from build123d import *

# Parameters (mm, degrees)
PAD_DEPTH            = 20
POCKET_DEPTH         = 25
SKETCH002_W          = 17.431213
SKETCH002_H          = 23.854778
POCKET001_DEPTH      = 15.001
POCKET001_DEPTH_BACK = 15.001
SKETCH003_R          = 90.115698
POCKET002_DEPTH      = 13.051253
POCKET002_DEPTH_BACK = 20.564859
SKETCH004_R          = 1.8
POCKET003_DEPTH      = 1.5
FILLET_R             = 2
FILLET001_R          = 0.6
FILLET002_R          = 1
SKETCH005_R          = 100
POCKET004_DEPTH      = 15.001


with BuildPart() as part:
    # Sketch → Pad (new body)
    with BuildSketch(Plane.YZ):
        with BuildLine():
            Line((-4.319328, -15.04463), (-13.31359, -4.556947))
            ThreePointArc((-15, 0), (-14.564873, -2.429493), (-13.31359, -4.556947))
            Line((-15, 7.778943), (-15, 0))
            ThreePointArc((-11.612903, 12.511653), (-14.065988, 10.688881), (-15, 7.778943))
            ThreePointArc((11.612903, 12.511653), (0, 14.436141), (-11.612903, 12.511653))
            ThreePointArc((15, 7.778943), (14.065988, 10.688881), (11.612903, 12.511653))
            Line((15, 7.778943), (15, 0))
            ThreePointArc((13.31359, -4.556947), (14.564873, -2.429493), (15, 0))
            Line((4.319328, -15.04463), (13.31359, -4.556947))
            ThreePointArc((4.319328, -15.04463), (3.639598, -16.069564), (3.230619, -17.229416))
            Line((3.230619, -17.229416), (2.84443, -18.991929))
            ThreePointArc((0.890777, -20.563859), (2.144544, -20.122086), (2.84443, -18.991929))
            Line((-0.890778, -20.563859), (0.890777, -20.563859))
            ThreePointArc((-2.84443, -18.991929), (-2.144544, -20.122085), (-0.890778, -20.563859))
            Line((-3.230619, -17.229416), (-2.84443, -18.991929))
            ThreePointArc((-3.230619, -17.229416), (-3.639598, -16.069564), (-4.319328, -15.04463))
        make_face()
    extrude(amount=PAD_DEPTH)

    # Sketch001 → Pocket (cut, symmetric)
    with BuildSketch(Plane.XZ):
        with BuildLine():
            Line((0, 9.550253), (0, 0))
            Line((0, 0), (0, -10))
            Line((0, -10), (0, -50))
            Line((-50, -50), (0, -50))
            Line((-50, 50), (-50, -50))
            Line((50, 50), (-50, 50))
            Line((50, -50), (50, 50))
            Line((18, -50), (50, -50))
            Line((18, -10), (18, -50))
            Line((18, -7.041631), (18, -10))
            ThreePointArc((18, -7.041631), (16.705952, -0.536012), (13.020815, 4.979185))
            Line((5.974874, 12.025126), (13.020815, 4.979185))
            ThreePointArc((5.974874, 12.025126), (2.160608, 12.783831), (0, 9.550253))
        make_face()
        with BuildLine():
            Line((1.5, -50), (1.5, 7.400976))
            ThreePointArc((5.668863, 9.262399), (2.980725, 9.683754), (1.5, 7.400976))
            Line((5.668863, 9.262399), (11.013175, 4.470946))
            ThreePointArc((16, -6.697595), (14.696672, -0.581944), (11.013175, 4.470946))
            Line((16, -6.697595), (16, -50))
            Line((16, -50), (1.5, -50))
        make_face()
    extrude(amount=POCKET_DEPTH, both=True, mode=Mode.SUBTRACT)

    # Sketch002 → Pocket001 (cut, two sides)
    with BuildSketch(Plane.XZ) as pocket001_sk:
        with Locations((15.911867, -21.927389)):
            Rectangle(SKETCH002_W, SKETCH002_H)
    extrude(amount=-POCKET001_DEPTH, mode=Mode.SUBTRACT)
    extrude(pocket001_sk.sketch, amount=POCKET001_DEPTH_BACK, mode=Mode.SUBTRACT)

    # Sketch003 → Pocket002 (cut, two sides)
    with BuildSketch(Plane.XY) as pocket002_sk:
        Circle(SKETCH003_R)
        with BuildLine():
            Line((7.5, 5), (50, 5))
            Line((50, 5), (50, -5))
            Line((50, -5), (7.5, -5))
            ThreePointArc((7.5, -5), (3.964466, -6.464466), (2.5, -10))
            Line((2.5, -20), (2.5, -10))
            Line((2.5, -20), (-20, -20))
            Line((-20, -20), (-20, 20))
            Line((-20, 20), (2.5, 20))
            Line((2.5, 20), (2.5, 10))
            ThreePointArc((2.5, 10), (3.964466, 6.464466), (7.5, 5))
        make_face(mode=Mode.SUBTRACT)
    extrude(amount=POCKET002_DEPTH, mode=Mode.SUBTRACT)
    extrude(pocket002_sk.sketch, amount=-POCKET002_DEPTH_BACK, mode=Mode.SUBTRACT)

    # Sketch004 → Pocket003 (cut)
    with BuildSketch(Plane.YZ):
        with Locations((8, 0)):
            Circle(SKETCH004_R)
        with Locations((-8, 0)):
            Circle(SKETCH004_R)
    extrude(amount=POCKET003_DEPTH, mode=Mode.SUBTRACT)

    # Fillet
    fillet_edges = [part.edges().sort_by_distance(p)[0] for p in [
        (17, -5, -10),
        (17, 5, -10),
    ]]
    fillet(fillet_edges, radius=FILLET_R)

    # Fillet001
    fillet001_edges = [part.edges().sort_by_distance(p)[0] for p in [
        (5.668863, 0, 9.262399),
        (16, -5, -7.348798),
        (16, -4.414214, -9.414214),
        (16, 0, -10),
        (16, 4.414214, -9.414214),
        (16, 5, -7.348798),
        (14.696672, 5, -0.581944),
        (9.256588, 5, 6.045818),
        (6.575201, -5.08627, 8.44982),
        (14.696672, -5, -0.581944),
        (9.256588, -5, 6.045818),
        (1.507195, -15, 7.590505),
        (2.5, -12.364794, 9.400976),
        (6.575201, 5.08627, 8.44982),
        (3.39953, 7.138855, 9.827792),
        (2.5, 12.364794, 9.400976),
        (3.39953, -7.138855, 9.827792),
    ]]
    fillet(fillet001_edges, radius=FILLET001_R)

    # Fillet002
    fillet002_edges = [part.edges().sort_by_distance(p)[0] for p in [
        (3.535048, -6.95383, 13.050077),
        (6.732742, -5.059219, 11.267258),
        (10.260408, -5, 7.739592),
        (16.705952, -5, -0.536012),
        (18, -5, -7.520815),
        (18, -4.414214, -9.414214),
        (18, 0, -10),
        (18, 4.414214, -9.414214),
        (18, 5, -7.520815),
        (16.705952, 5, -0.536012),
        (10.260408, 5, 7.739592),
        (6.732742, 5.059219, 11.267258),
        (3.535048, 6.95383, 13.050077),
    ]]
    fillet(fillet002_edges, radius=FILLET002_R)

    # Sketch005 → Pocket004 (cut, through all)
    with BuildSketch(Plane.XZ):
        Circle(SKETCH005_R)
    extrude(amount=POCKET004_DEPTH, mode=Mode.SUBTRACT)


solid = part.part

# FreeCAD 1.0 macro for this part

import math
import FreeCAD as App
import Part
import Sketcher
from FreeCAD import Vector
Q = App.Units.Quantity


def edges_at(feature, points):
    """Names of the edges that pass closest to the given points."""
    edges = feature.Shape.Edges
    near = lambda p: min(range(len(edges)), key=lambda i: edges[i].distToShape(Part.Vertex(*p))[0])
    return sorted({f"Edge{near(p) + 1}" for p in points})

doc = App.newDocument("Part")
params = doc.addObject("Spreadsheet::Sheet", "Params")
for row, (alias, value) in enumerate([
    ("sketch1_radius", "2 mm"),
    ("sketch1_radius2", "5.000001 mm"),
    ("pad1_length", "20 mm"),
    ("sketch2_radius", "17 mm"),
    ("sketch2_radius2", "3.5 mm"),
    ("sketch2_radius3", "2.5 mm"),
    ("sketch2_width", "32 mm"),
    ("sketch2_width2", "100 mm"),
    ("pocket1_length", "50 mm"),
    ("sketch4_radius", "5 mm"),
    ("sketch4_height", "10 mm"),
    ("sketch4_width", "42.5 mm"),
    ("sketch4_width2", "22.5 mm"),
    ("sketch5_diameter", "3.6 mm"),
    ("pocket4_length", "1.5 mm"),
    ("fillet_radius", "2 mm"),
    ("fillet2_radius", "0.6 mm"),
    ("fillet3_radius", "1 mm"),
    ("sketch6_diameter", "200 mm"),
], start=1):
    params.set(f"A{row}", alias)
    params.set(f"B{row}", "=" + value)
    params.setAlias(f"B{row}", alias)

body = doc.addObject("PartDesign::Body", "Body")

# Sketch on YZ plane
sketch1 = doc.addObject("Sketcher::SketchObject", "Sketch")
body.addObject(sketch1)
sketch1.AttachmentSupport = (doc.YZ_Plane, [""])
sketch1.MapMode = "FlatFace"
sketch1.addGeometry([
    Part.LineSegment(Vector(-13.3, -4.6, 0), Vector(-4.3, -15, 0)),  # 0
    Part.ArcOfCircle(Part.Circle(Vector(-8.1, -18.3, 0), Vector(0, 0, 1), 5), math.radians(12), math.radians(41)),  # 1
    Part.LineSegment(Vector(-3.2, -17.2, 0), Vector(-2.8, -19, 0)),  # 2
    Part.ArcOfCircle(Part.Circle(Vector(-0.9, -18.6, 0), Vector(0, 0, 1), 2), math.radians(-168), math.radians(-90)),  # 3
    Part.LineSegment(Vector(-0.9, -20.6, 0), Vector(0.9, -20.6, 0)),  # 4
    Part.ArcOfCircle(Part.Circle(Vector(0.9, -18.6, 0), Vector(0, 0, 1), 2), math.radians(-90), math.radians(-12)),  # 5
    Part.LineSegment(Vector(2.8, -19, 0), Vector(3.2, -17.2, 0)),  # 6
    Part.ArcOfCircle(Part.Circle(Vector(8.1, -18.3, 0), Vector(0, 0, 1), 5), math.radians(139), math.radians(168)),  # 7
    Part.LineSegment(Vector(4.3, -15, 0), Vector(13.3, -4.6, 0)),  # 8
    Part.ArcOfCircle(Part.Circle(Vector(8, 0, 0), Vector(0, 0, 1), 7), math.radians(-41), math.radians(0)),  # 9
    Part.LineSegment(Vector(15, 0, 0), Vector(15, 7.8, 0)),  # 10
    Part.ArcOfCircle(Part.Circle(Vector(10, 7.8, 0), Vector(0, 0, 1), 5), math.radians(0), math.radians(71)),  # 11
    Part.ArcOfCircle(Part.Circle(Vector(0, -21.6, 0), Vector(0, 0, 1), 36), math.radians(71), math.radians(109)),  # 12
    Part.ArcOfCircle(Part.Circle(Vector(-10, 7.8, 0), Vector(0, 0, 1), 5), math.radians(109), math.radians(180)),  # 13
    Part.LineSegment(Vector(-15, 7.8, 0), Vector(-15, 0, 0)),  # 14
    Part.ArcOfCircle(Part.Circle(Vector(-8, 0, 0), Vector(0, 0, 1), 7), math.radians(-180), math.radians(-139)),  # 15
], False)
sketch1.addConstraint([
    Sketcher.Constraint("Tangent", 0, 2, 1, 2),
    Sketcher.Constraint("Tangent", 1, 1, 2, 1),
    Sketcher.Constraint("Tangent", 2, 2, 3, 1),
    Sketcher.Constraint("Tangent", 3, 2, 4, 1),
    Sketcher.Constraint("Tangent", 4, 2, 5, 1),
    Sketcher.Constraint("Tangent", 5, 2, 6, 1),
    Sketcher.Constraint("Tangent", 6, 2, 7, 2),
    Sketcher.Constraint("Tangent", 7, 1, 8, 1),
    Sketcher.Constraint("Tangent", 8, 2, 9, 1),
    Sketcher.Constraint("Tangent", 9, 2, 10, 1),
    Sketcher.Constraint("Tangent", 10, 2, 11, 1),
    Sketcher.Constraint("Tangent", 11, 2, 12, 1),
    Sketcher.Constraint("Tangent", 12, 2, 13, 1),
    Sketcher.Constraint("Tangent", 13, 2, 14, 1),
    Sketcher.Constraint("Tangent", 14, 2, 15, 1),
    Sketcher.Constraint("Tangent", 15, 2, 0, 1),
    Sketcher.Constraint("Horizontal", 4),
    Sketcher.Constraint("Vertical", 10),
    Sketcher.Constraint("Vertical", 14),
    Sketcher.Constraint("Equal", 1, 7),
    Sketcher.Constraint("Equal", 11, 13),
    Sketcher.Constraint("Equal", 9, 15),
    Sketcher.Constraint("Symmetric", 9, 3, 15, 3, -1, 1),
    Sketcher.Constraint("Symmetric", 3, 3, 5, 3, -2),
    Sketcher.Constraint("Symmetric", 1, 3, 7, 3, -2),
    Sketcher.Constraint("PointOnObject", 12, 3, -2),
    Sketcher.Constraint("PointOnObject", 9, 2, -1),
    Sketcher.Constraint("Radius", 5, 2.0),
    Sketcher.Constraint("Radius", 11, 5.000001),
    Sketcher.Constraint("DistanceX", -1, 1, 11, 3, 9.999999),
    Sketcher.Constraint("Radius", 9, 7.000009),
    Sketcher.Constraint("Radius", 12, 36.000009),
    Sketcher.Constraint("Radius", 1, 4.999997),
    Sketcher.Constraint("DistanceY", 5, 3, 11, 3, 26.342802),
    Sketcher.Constraint("DistanceY", 2, 2, 0, 2, 3.947299),
    Sketcher.Constraint("DistanceX", 5, 2, 7, 1, 1.474898),
    Sketcher.Constraint("DistanceX", 9, 3, 8, 2, 5.313599),
    Sketcher.Constraint("DistanceY", 8, 2, 11, 2, 17.0686),
])
sketch1.setExpression("Constraints[27]", "Params.sketch1_radius")
sketch1.setExpression("Constraints[28]", "Params.sketch1_radius2")
pad1 = doc.addObject("PartDesign::Pad", "Pad")
body.addObject(pad1)
pad1.Profile = sketch1
pad1.setExpression("Length", "Params.pad1_length")

# Sketch on XZ plane
sketch2 = doc.addObject("Sketcher::SketchObject", "Sketch001")
body.addObject(sketch2)
sketch2.AttachmentSupport = (doc.XZ_Plane, [""])
sketch2.MapMode = "FlatFace"
sketch2.addGeometry([
    Part.LineSegment(Vector(0, -50, 0), Vector(0, 9.6, 0)),  # 0
    Part.ArcOfCircle(Part.Circle(Vector(3.5, 9.6, 0), Vector(0, 0, 1), 3.5), math.radians(45), math.radians(180)),  # 1
    Part.LineSegment(Vector(6, 12, 0), Vector(13, 5, 0)),  # 2
    Part.ArcOfCircle(Part.Circle(Vector(1, -7, 0), Vector(0, 0, 1), 17), math.radians(0), math.radians(45)),  # 3
    Part.LineSegment(Vector(18, -7, 0), Vector(18, -50, 0)),  # 4
    Part.LineSegment(Vector(18, -50, 0), Vector(50, -50, 0)),  # 5
    Part.LineSegment(Vector(50, -50, 0), Vector(50, 50, 0)),  # 6
    Part.LineSegment(Vector(50, 50, 0), Vector(-50, 50, 0)),  # 7
    Part.LineSegment(Vector(-50, 50, 0), Vector(-50, -50, 0)),  # 8
    Part.LineSegment(Vector(-50, -50, 0), Vector(0, -50, 0)),  # 9
    Part.LineSegment(Vector(1.5, 7.4, 0), Vector(1.5, -50, 0)),  # 10
    Part.LineSegment(Vector(1.5, -50, 0), Vector(16, -50, 0)),  # 11
    Part.LineSegment(Vector(16, -50, 0), Vector(16, -6.7, 0)),  # 12
    Part.ArcOfCircle(Part.Circle(Vector(1, -6.7, 0), Vector(0, 0, 1), 15), math.radians(0), math.radians(48)),  # 13
    Part.LineSegment(Vector(11, 4.5, 0), Vector(5.7, 9.3, 0)),  # 14
    Part.ArcOfCircle(Part.Circle(Vector(4, 7.4, 0), Vector(0, 0, 1), 2.5), math.radians(48), math.radians(180)),  # 15
], False)
sketch2.addConstraint([
    Sketcher.Constraint("Tangent", 0, 2, 1, 2),
    Sketcher.Constraint("Tangent", 1, 1, 2, 1),
    Sketcher.Constraint("Tangent", 2, 2, 3, 2),
    Sketcher.Constraint("Tangent", 3, 1, 4, 1),
    Sketcher.Constraint("Coincident", 4, 2, 5, 1),
    Sketcher.Constraint("Coincident", 5, 2, 6, 1),
    Sketcher.Constraint("Coincident", 6, 2, 7, 1),
    Sketcher.Constraint("Coincident", 7, 2, 8, 1),
    Sketcher.Constraint("Coincident", 8, 2, 9, 1),
    Sketcher.Constraint("Coincident", 9, 2, 0, 1),
    Sketcher.Constraint("Coincident", 10, 2, 11, 1),
    Sketcher.Constraint("Coincident", 11, 2, 12, 1),
    Sketcher.Constraint("Tangent", 12, 2, 13, 1),
    Sketcher.Constraint("Tangent", 13, 2, 14, 1),
    Sketcher.Constraint("Tangent", 14, 2, 15, 1),
    Sketcher.Constraint("Tangent", 15, 2, 10, 1),
    Sketcher.Constraint("Vertical", 0),
    Sketcher.Constraint("Vertical", 4),
    Sketcher.Constraint("Horizontal", 5),
    Sketcher.Constraint("Vertical", 6),
    Sketcher.Constraint("Horizontal", 7),
    Sketcher.Constraint("Vertical", 8),
    Sketcher.Constraint("Horizontal", 9),
    Sketcher.Constraint("Vertical", 10),
    Sketcher.Constraint("Horizontal", 11),
    Sketcher.Constraint("Vertical", 12),
    Sketcher.Constraint("Symmetric", 5, 2, 7, 2, -1, 1),
    Sketcher.Constraint("PointOnObject", 0, 2, -2),
    Sketcher.Constraint("Horizontal", 5, 2, 8, 2),
    Sketcher.Constraint("Horizontal", 9, 2, 10, 2),
    Sketcher.Constraint("Equal", 7, 6),
    Sketcher.Constraint("Radius", 3, 17.0),
    Sketcher.Constraint("Radius", 1, 3.5),
    Sketcher.Constraint("Radius", 15, 2.5),
    Sketcher.Constraint("DistanceX", 5, 1, 5, 2, 32.0),
    Sketcher.Constraint("DistanceX", 7, 2, 7, 1, 100.0),
    Sketcher.Constraint("Angle", 2, Q("-45 deg")),
    Sketcher.Constraint("DistanceX", 11, 1, 11, 2, 14.5),
    Sketcher.Constraint("DistanceX", -1, 1, 15, 3, 4.0),
    Sketcher.Constraint("Radius", 13, 14.999993),
    Sketcher.Constraint("DistanceY", 4, 2, 4, 1, 42.958369),
    Sketcher.Constraint("DistanceY", -1, 1, 14, 2, 9.262399),
    Sketcher.Constraint("DistanceX", 1, 1, 13, 2, 5.038301),
])
sketch2.setExpression("Constraints[31]", "Params.sketch2_radius")
sketch2.setExpression("Constraints[32]", "Params.sketch2_radius2")
sketch2.setExpression("Constraints[33]", "Params.sketch2_radius3")
sketch2.setExpression("Constraints[34]", "Params.sketch2_width")
sketch2.setExpression("Constraints[35]", "Params.sketch2_width2")
pocket1 = doc.addObject("PartDesign::Pocket", "Pocket")
body.addObject(pocket1)
pocket1.Profile = sketch2
pocket1.setExpression("Length", "Params.pocket1_length")
pocket1.Midplane = True

# Sketch on XZ plane
sketch3 = doc.addObject("Sketcher::SketchObject", "Sketch002")
body.addObject(sketch3)
sketch3.AttachmentSupport = (doc.XZ_Plane, [""])
sketch3.MapMode = "FlatFace"
sketch3.addGeometry([
    Part.LineSegment(Vector(7, -10, 0), Vector(7, -34, 0)),
    Part.LineSegment(Vector(7, -34, 0), Vector(25, -34, 0)),
    Part.LineSegment(Vector(25, -34, 0), Vector(25, -10, 0)),
    Part.LineSegment(Vector(25, -10, 0), Vector(7, -10, 0)),
], False)
sketch3.addConstraint([
    Sketcher.Constraint("Coincident", 0, 2, 1, 1),
    Sketcher.Constraint("Coincident", 1, 2, 2, 1),
    Sketcher.Constraint("Coincident", 2, 2, 3, 1),
    Sketcher.Constraint("Coincident", 3, 2, 0, 1),
    Sketcher.Constraint("Vertical", 0),
    Sketcher.Constraint("Horizontal", 1),
    Sketcher.Constraint("Vertical", 2),
    Sketcher.Constraint("Horizontal", 3),
    Sketcher.Constraint("DistanceY", 2, 2, -1, 1, 10.0),
    Sketcher.Constraint("DistanceY", 0, 2, 0, 1, 23.854778),
    Sketcher.Constraint("DistanceX", 1, 1, 1, 2, 17.431213),
    Sketcher.Constraint("DistanceX", -1, 1, 0, 2, 7.196261),
])
pocket2 = doc.addObject("PartDesign::Pocket", "Pocket001")
body.addObject(pocket2)
pocket2.Profile = sketch3
pocket2.Type = "ThroughAll"
pocket2.Midplane = True

# Sketch on XY plane
sketch4 = doc.addObject("Sketcher::SketchObject", "Sketch003")
body.addObject(sketch4)
sketch4.AttachmentSupport = (doc.XY_Plane, [""])
sketch4.MapMode = "FlatFace"
sketch4.addGeometry([
    Part.Circle(Vector(0, 0, 0), Vector(0, 0, 1), 90.1),  # 0
    Part.ArcOfCircle(Part.Circle(Vector(7.5, 10, 0), Vector(0, 0, 1), 5), math.radians(180), math.radians(270)),  # 1
    Part.LineSegment(Vector(7.5, 5, 0), Vector(50, 5, 0)),  # 2
    Part.LineSegment(Vector(50, 5, 0), Vector(50, -5, 0)),  # 3
    Part.LineSegment(Vector(50, -5, 0), Vector(7.5, -5, 0)),  # 4
    Part.ArcOfCircle(Part.Circle(Vector(7.5, -10, 0), Vector(0, 0, 1), 5), math.radians(90), math.radians(180)),  # 5
    Part.LineSegment(Vector(2.5, -10, 0), Vector(2.5, -20, 0)),  # 6
    Part.LineSegment(Vector(2.5, -20, 0), Vector(-20, -20, 0)),  # 7
    Part.LineSegment(Vector(-20, -20, 0), Vector(-20, 20, 0)),  # 8
    Part.LineSegment(Vector(-20, 20, 0), Vector(2.5, 20, 0)),  # 9
    Part.LineSegment(Vector(2.5, 20, 0), Vector(2.5, 10, 0)),  # 10
], False)
sketch4.addConstraint([
    Sketcher.Constraint("Tangent", 1, 2, 2, 1),
    Sketcher.Constraint("Coincident", 2, 2, 3, 1),
    Sketcher.Constraint("Coincident", 3, 2, 4, 1),
    Sketcher.Constraint("Tangent", 4, 2, 5, 1),
    Sketcher.Constraint("Tangent", 5, 2, 6, 1),
    Sketcher.Constraint("Coincident", 6, 2, 7, 1),
    Sketcher.Constraint("Coincident", 7, 2, 8, 1),
    Sketcher.Constraint("Coincident", 8, 2, 9, 1),
    Sketcher.Constraint("Coincident", 9, 2, 10, 1),
    Sketcher.Constraint("Tangent", 10, 2, 1, 1),
    Sketcher.Constraint("Horizontal", 2),
    Sketcher.Constraint("Vertical", 3),
    Sketcher.Constraint("Horizontal", 4),
    Sketcher.Constraint("Vertical", 6),
    Sketcher.Constraint("Horizontal", 7),
    Sketcher.Constraint("Vertical", 8),
    Sketcher.Constraint("Horizontal", 9),
    Sketcher.Constraint("Vertical", 10),
    Sketcher.Constraint("Coincident", 0, 3, -1, 1),
    Sketcher.Constraint("Equal", 1, 5),
    Sketcher.Constraint("Symmetric", 1, 3, 5, 3, -1),
    Sketcher.Constraint("Equal", 3, 6),
    Sketcher.Constraint("Equal", 6, 10),
    Sketcher.Constraint("Radius", 1, 5.0),
    Sketcher.Constraint("DistanceY", 3, 2, 3, 1, 10.0),
    Sketcher.Constraint("DistanceX", 2, 1, 2, 2, 42.5),
    Sketcher.Constraint("DistanceX", 7, 2, 7, 1, 22.5),
    Sketcher.Constraint("DistanceX", -1, 1, 2, 2, 50.0),
    Sketcher.Constraint("Diameter", 0, 180.231396),
])
sketch4.setExpression("Constraints[23]", "Params.sketch4_radius")
sketch4.setExpression("Constraints[24]", "Params.sketch4_height")
sketch4.setExpression("Constraints[25]", "Params.sketch4_width")
sketch4.setExpression("Constraints[26]", "Params.sketch4_width2")
pocket3 = doc.addObject("PartDesign::Pocket", "Pocket002")
body.addObject(pocket3)
pocket3.Profile = sketch4
pocket3.Type = "ThroughAll"
pocket3.Midplane = True

# Sketch on YZ plane
sketch5 = doc.addObject("Sketcher::SketchObject", "Sketch004")
body.addObject(sketch5)
sketch5.AttachmentSupport = (doc.YZ_Plane, [""])
sketch5.MapMode = "FlatFace"
sketch5.addGeometry([
    Part.Circle(Vector(8, 0, 0), Vector(0, 0, 1), 1.8),
    Part.Circle(Vector(-8, 0, 0), Vector(0, 0, 1), 1.8),
], False)
sketch5.addConstraint([
    Sketcher.Constraint("Equal", 0, 1),
    Sketcher.Constraint("Symmetric", 0, 3, 1, 3, -1, 1),
    Sketcher.Constraint("PointOnObject", 0, 3, -1),
    Sketcher.Constraint("Diameter", 0, 3.6),
    Sketcher.Constraint("DistanceX", -1, 1, 0, 3, 8.0),
])
sketch5.setExpression("Constraints[3]", "Params.sketch5_diameter")
pocket4 = doc.addObject("PartDesign::Pocket", "Pocket003")
body.addObject(pocket4)
pocket4.Profile = sketch5
pocket4.setExpression("Length", "Params.pocket4_length")
pocket4.Reversed = True
doc.recompute()

fillet = doc.addObject("PartDesign::Fillet", "Fillet")
body.addObject(fillet)
fillet.Base = (pocket4, edges_at(pocket4, [(17, -5, -10), (17, 5, -10)]))
fillet.setExpression("Radius", "Params.fillet_radius")
doc.recompute()

fillet2 = doc.addObject("PartDesign::Fillet", "Fillet001")
body.addObject(fillet2)
fillet2.Base = (fillet, edges_at(fillet, [
    (5.669, 0, 9.262),
    (16, -5, -7.349),
    (16, -4.414, -9.414),
    (16, 0, -10),
    (16, 4.414, -9.414),
    (16, 5, -7.349),
    (14.697, 5, -0.582),
    (9.257, 5, 6.046),
    (6.575, -5.086, 8.45),
    (14.697, -5, -0.582),
    (9.257, -5, 6.046),
    (1.507, -15, 7.591),
    (2.5, -12.365, 9.401),
    (6.575, 5.086, 8.45),
    (3.4, 7.139, 9.828),
    (2.5, 12.365, 9.401),
    (3.4, -7.139, 9.828),
]))
fillet2.setExpression("Radius", "Params.fillet2_radius")
doc.recompute()

fillet3 = doc.addObject("PartDesign::Fillet", "Fillet002")
body.addObject(fillet3)
fillet3.Base = (fillet2, edges_at(fillet2, [
    (3.535, -6.954, 13.05),
    (6.733, -5.059, 11.267),
    (10.26, -5, 7.74),
    (16.706, -5, -0.536),
    (18, -5, -7.521),
    (18, -4.414, -9.414),
    (18, 0, -10),
    (18, 4.414, -9.414),
    (18, 5, -7.521),
    (16.706, 5, -0.536),
    (10.26, 5, 7.74),
    (6.733, 5.059, 11.267),
    (3.535, 6.954, 13.05),
]))
fillet3.setExpression("Radius", "Params.fillet3_radius")

# Sketch on XZ plane
sketch6 = doc.addObject("Sketcher::SketchObject", "Sketch005")
body.addObject(sketch6)
sketch6.AttachmentSupport = (doc.XZ_Plane, [""])
sketch6.MapMode = "FlatFace"
sketch6.addGeometry(Part.Circle(Vector(0, 0, 0), Vector(0, 0, 1), 100), False)
sketch6.addConstraint([
    Sketcher.Constraint("Coincident", 0, 3, -1, 1),
    Sketcher.Constraint("Diameter", 0, 200.0),
])
sketch6.setExpression("Constraints[1]", "Params.sketch6_diameter")
pocket5 = doc.addObject("PartDesign::Pocket", "Pocket004")
body.addObject(pocket5)
pocket5.Profile = sketch6
pocket5.Type = "ThroughAll"
pocket5.Reversed = True

doc.recompute()
